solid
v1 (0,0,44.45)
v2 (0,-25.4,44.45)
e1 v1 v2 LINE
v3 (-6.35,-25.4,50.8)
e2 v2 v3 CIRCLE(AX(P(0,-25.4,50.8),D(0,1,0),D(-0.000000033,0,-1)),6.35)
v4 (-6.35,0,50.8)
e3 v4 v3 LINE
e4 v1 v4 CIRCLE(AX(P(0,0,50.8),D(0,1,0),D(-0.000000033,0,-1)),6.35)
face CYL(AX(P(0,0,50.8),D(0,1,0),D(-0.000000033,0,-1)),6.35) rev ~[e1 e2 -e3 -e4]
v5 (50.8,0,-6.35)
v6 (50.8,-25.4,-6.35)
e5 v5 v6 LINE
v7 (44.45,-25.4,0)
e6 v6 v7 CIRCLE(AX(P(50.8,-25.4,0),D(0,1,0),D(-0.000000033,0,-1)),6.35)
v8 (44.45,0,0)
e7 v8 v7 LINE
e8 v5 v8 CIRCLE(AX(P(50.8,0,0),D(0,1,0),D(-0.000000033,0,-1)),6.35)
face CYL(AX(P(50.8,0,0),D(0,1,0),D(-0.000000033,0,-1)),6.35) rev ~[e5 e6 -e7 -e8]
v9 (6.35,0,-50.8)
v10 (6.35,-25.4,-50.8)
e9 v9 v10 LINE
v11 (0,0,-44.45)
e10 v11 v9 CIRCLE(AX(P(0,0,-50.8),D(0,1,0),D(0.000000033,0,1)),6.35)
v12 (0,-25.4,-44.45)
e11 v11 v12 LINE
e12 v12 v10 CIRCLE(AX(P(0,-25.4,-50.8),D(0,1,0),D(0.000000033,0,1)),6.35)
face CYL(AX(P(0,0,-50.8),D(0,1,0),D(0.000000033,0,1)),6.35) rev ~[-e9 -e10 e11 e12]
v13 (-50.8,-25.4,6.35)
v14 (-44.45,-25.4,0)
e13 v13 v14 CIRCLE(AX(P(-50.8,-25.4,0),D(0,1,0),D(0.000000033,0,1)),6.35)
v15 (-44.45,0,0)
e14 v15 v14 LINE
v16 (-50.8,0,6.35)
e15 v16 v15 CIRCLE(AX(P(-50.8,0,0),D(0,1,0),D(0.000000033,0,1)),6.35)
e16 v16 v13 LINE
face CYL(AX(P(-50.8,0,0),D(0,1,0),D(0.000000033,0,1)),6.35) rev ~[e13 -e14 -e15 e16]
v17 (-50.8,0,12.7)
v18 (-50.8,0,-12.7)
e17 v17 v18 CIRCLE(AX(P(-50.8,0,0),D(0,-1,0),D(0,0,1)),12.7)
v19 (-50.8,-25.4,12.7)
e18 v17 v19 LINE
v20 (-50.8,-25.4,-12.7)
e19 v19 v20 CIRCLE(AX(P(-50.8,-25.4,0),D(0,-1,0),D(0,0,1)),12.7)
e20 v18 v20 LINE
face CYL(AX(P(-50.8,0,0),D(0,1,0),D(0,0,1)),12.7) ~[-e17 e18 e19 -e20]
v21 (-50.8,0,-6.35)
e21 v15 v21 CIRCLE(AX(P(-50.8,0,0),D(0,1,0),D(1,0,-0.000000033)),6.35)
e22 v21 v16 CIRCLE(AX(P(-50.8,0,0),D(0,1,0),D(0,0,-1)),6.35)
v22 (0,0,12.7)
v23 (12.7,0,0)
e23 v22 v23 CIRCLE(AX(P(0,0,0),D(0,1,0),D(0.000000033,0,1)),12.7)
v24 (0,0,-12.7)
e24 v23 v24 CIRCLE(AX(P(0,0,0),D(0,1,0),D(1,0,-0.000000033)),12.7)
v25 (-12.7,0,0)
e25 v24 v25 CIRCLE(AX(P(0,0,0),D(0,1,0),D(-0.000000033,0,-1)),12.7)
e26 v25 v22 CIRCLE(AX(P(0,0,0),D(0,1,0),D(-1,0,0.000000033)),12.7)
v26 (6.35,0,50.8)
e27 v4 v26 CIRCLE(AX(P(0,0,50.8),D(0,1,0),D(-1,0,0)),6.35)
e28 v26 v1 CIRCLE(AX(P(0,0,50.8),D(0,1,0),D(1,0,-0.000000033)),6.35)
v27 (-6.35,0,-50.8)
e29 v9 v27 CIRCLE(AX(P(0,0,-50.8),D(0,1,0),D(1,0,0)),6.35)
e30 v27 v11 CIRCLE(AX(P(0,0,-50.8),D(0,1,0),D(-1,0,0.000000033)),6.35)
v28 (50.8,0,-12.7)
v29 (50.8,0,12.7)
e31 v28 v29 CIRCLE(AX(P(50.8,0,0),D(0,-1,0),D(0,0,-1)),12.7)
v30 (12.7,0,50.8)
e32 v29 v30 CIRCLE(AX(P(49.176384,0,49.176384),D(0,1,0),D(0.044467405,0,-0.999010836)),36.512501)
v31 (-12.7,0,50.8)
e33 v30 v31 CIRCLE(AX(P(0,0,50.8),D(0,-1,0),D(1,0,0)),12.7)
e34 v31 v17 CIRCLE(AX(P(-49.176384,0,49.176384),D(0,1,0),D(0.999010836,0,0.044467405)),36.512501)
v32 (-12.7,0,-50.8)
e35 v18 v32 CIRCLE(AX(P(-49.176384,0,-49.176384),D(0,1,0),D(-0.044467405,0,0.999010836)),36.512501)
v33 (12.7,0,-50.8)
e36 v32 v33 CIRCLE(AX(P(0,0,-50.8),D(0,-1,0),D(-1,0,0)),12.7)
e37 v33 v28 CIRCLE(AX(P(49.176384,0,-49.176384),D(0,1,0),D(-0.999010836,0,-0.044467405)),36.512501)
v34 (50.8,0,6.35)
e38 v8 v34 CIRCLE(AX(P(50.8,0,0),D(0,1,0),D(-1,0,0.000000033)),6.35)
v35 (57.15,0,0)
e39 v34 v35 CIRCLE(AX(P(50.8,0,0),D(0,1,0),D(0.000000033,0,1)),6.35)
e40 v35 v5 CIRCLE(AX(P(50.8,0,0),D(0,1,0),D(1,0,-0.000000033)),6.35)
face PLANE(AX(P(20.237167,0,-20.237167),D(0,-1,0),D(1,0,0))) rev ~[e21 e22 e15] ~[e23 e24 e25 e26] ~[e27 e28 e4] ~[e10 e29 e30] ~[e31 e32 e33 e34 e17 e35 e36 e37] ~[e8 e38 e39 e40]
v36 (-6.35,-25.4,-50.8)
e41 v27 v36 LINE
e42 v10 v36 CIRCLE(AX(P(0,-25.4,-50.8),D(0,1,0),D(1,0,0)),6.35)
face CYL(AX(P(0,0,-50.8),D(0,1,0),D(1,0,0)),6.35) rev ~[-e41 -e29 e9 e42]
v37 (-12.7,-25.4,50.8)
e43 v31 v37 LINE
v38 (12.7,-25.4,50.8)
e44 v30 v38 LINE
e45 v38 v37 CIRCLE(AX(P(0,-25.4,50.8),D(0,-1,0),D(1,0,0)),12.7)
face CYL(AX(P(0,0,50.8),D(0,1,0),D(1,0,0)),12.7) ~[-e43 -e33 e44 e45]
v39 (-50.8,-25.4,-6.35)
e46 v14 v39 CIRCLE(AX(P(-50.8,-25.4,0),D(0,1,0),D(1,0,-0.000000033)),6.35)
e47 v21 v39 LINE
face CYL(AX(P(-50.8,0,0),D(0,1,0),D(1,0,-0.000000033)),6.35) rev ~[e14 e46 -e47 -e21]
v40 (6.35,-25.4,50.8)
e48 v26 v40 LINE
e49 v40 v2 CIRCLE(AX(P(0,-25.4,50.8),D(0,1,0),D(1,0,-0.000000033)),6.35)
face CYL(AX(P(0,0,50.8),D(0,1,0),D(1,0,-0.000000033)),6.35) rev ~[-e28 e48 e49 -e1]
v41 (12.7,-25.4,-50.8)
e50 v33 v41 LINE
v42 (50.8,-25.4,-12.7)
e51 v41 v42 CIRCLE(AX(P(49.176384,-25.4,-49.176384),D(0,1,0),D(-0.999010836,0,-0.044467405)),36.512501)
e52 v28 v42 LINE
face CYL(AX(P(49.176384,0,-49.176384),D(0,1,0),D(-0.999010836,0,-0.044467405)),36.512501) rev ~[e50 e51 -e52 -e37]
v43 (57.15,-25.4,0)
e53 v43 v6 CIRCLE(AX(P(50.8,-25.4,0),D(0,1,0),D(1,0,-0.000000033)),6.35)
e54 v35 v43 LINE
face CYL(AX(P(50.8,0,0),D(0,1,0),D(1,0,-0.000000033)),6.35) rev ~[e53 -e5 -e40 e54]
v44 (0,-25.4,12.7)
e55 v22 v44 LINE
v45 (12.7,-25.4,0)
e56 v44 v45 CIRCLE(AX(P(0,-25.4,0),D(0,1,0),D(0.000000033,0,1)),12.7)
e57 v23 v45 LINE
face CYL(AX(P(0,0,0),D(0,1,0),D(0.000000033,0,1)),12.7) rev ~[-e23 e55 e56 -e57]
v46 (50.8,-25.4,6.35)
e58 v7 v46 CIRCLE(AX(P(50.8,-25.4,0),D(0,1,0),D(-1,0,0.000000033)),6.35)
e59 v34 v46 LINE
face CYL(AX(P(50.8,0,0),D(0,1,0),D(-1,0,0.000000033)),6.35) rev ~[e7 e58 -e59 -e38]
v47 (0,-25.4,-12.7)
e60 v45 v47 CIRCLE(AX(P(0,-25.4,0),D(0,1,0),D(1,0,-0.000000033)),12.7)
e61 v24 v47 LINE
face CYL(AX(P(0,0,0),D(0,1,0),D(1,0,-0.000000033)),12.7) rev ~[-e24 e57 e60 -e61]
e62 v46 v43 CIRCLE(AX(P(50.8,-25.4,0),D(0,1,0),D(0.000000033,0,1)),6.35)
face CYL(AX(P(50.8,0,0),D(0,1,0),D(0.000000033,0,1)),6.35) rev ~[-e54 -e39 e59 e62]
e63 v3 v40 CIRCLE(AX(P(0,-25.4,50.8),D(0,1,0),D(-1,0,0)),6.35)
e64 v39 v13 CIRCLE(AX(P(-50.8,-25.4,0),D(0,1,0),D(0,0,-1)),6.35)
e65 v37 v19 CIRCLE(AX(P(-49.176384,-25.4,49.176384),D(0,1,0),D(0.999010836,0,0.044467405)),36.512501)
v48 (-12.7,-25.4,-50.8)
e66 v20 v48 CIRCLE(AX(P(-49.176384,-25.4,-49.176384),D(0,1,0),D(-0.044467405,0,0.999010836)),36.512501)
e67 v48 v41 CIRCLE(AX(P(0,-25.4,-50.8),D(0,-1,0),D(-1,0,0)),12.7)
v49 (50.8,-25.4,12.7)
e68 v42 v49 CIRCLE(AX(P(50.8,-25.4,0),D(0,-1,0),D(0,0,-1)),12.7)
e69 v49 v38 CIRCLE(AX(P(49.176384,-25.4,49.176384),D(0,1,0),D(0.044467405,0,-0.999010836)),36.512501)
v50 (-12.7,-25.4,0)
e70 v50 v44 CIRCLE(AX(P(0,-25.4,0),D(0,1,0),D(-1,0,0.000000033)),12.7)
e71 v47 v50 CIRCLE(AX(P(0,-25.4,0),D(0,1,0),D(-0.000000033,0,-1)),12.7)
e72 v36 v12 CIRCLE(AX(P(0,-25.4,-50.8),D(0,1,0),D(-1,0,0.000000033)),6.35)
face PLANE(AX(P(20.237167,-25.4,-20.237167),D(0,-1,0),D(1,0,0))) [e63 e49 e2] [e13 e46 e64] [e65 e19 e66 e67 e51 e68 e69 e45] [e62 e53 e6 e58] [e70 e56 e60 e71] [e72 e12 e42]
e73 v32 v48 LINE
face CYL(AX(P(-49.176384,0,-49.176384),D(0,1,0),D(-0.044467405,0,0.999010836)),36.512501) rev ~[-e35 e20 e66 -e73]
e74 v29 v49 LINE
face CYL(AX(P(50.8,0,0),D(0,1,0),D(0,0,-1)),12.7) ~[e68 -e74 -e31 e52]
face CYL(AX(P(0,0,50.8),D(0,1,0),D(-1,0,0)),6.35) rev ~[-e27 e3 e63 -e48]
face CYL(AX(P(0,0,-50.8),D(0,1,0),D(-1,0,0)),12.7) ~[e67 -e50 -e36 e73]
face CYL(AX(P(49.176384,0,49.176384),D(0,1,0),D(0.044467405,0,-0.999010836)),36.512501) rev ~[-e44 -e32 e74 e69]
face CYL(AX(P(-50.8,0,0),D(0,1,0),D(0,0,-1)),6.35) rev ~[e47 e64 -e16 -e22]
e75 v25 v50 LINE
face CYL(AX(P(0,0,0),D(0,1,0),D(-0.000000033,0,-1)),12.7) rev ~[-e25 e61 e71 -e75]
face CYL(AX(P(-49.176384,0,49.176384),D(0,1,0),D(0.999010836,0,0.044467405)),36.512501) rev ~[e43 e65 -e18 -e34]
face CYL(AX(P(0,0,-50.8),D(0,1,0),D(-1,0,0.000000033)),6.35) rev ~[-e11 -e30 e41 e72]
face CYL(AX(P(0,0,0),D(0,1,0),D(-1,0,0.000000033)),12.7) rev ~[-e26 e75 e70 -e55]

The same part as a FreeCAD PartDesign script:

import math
import FreeCAD as App
import Part
import Sketcher
Q = App.Units.Quantity

doc = App.newDocument("Part")
params = doc.addObject("Spreadsheet::Sheet", "Params")
for row, (alias, value) in enumerate([
    ("sketch1_radius", "0.5 in"),
    ("sketch1_radius2", "0.25 in"),
    ("sketch1_radius3", "1.4375 in"),
    ("pad1_length", "1 in"),
], start=1):
    params.set(f"A{row}", alias)
    params.set(f"B{row}", "=" + value)
    params.setAlias(f"B{row}", alias)

body = doc.addObject("PartDesign::Body", "Body")

sketch1 = body.newObject("Sketcher::SketchObject", "Sketch")
sketch1.AttachmentSupport = (doc.getObject("XZ_Plane"), [""])
sketch1.MapMode = "FlatFace"
sketch1.addGeometry(Part.ArcOfCircle(Part.Circle(App.Vector(49.176384, -49.176384, 0), App.Vector(0, 0, 1), 36.512501), math.radians(87.451365), math.radians(182.548635)), False)
sketch1.addGeometry(Part.ArcOfCircle(Part.Circle(App.Vector(50.8, 0, 0), App.Vector(0, 0, 1), 12.7), math.radians(-90), math.radians(90)), False)
sketch1.addGeometry(Part.ArcOfCircle(Part.Circle(App.Vector(49.176384, 49.176384, 0), App.Vector(0, 0, 1), 36.512501), math.radians(177.451365), math.radians(272.548635)), False)
sketch1.addGeometry(Part.ArcOfCircle(Part.Circle(App.Vector(0, 50.8, 0), App.Vector(0, 0, 1), 12.7), math.radians(0), math.radians(180)), False)
sketch1.addGeometry(Part.ArcOfCircle(Part.Circle(App.Vector(-49.176384, 49.176384, 0), App.Vector(0, 0, 1), 36.512501), math.radians(-92.548635), math.radians(2.548635)), False)
sketch1.addGeometry(Part.ArcOfCircle(Part.Circle(App.Vector(-50.8, 0, 0), App.Vector(0, 0, 1), 12.7), math.radians(90), math.radians(270)), False)
sketch1.addGeometry(Part.ArcOfCircle(Part.Circle(App.Vector(-49.176384, -49.176384, 0), App.Vector(0, 0, 1), 36.512501), math.radians(-2.548635), math.radians(92.548635)), False)
sketch1.addGeometry(Part.ArcOfCircle(Part.Circle(App.Vector(0, -50.8, 0), App.Vector(0, 0, 1), 12.7), math.radians(180), math.radians(360)), False)
sketch1.addGeometry(Part.ArcOfCircle(Part.Circle(App.Vector(0, 0, 0), App.Vector(0, 0, 1), 12.7), math.radians(-89.999998), math.radians(-0.000002)), False)
sketch1.addGeometry(Part.ArcOfCircle(Part.Circle(App.Vector(0, 0, 0), App.Vector(0, 0, 1), 12.7), math.radians(-179.999998), math.radians(-90.000002)), False)
sketch1.addGeometry(Part.ArcOfCircle(Part.Circle(App.Vector(0, 0, 0), App.Vector(0, 0, 1), 12.7), math.radians(90.000002), math.radians(179.999998)), False)
sketch1.addGeometry(Part.ArcOfCircle(Part.Circle(App.Vector(0, 0, 0), App.Vector(0, 0, 1), 12.7), math.radians(0.000002), math.radians(89.999998)), False)
sketch1.addGeometry(Part.ArcOfCircle(Part.Circle(App.Vector(0, -50.8, 0), App.Vector(0, 0, 1), 6.35), math.radians(0.000002), math.radians(89.999998)), False)
sketch1.addGeometry(Part.ArcOfCircle(Part.Circle(App.Vector(0, -50.8, 0), App.Vector(0, 0, 1), 6.35), math.radians(180), math.radians(360)), False)
sketch1.addGeometry(Part.ArcOfCircle(Part.Circle(App.Vector(0, -50.8, 0), App.Vector(0, 0, 1), 6.35), math.radians(90.000002), math.radians(179.999998)), False)
sketch1.addGeometry(Part.ArcOfCircle(Part.Circle(App.Vector(-50.8, 0, 0), App.Vector(0, 0, 1), 6.35), math.radians(0.000002), math.radians(89.999998)), False)
sketch1.addGeometry(Part.ArcOfCircle(Part.Circle(App.Vector(-50.8, 0, 0), App.Vector(0, 0, 1), 6.35), math.radians(-89.999998), math.radians(-0.000002)), False)
sketch1.addGeometry(Part.ArcOfCircle(Part.Circle(App.Vector(-50.8, 0, 0), App.Vector(0, 0, 1), 6.35), math.radians(90), math.radians(270)), False)
sketch1.addGeometry(Part.ArcOfCircle(Part.Circle(App.Vector(0, 50.8, 0), App.Vector(0, 0, 1), 6.35), math.radians(-89.999998), math.radians(-0.000002)), False)
sketch1.addGeometry(Part.ArcOfCircle(Part.Circle(App.Vector(0, 50.8, 0), App.Vector(0, 0, 1), 6.35), math.radians(-179.999998), math.radians(-90.000002)), False)
sketch1.addGeometry(Part.ArcOfCircle(Part.Circle(App.Vector(0, 50.8, 0), App.Vector(0, 0, 1), 6.35), math.radians(0), math.radians(180)), False)
sketch1.addGeometry(Part.ArcOfCircle(Part.Circle(App.Vector(50.8, 0, 0), App.Vector(0, 0, 1), 6.35), math.radians(-179.999998), math.radians(-90.000002)), False)
sketch1.addGeometry(Part.ArcOfCircle(Part.Circle(App.Vector(50.8, 0, 0), App.Vector(0, 0, 1), 6.35), math.radians(90.000002), math.radians(179.999998)), False)
sketch1.addGeometry(Part.ArcOfCircle(Part.Circle(App.Vector(50.8, 0, 0), App.Vector(0, 0, 1), 6.35), math.radians(0.000002), math.radians(89.999998)), False)
sketch1.addGeometry(Part.ArcOfCircle(Part.Circle(App.Vector(50.8, 0, 0), App.Vector(0, 0, 1), 6.35), math.radians(-89.999998), math.radians(-0.000002)), False)
sketch1.addConstraint(Sketcher.Constraint("Coincident", 0, 1, 1, 1))
sketch1.addConstraint(Sketcher.Constraint("Coincident", 1, 2, 2, 2))
sketch1.addConstraint(Sketcher.Constraint("Coincident", 2, 1, 3, 1))
sketch1.addConstraint(Sketcher.Constraint("Coincident", 3, 2, 4, 2))
sketch1.addConstraint(Sketcher.Constraint("Coincident", 4, 1, 5, 1))
sketch1.addConstraint(Sketcher.Constraint("Coincident", 5, 2, 6, 2))
sketch1.addConstraint(Sketcher.Constraint("Coincident", 6, 1, 7, 1))
sketch1.addConstraint(Sketcher.Constraint("Coincident", 7, 2, 0, 2))
sketch1.addConstraint(Sketcher.Constraint("Tangent", 8, 1, 9, 2))
sketch1.addConstraint(Sketcher.Constraint("Tangent", 9, 1, 10, 2))
sketch1.addConstraint(Sketcher.Constraint("Tangent", 10, 1, 11, 2))
sketch1.addConstraint(Sketcher.Constraint("Tangent", 11, 1, 8, 2))
sketch1.addConstraint(Sketcher.Constraint("Tangent", 12, 1, 13, 2))
sketch1.addConstraint(Sketcher.Constraint("Tangent", 13, 1, 14, 2))
sketch1.addConstraint(Sketcher.Constraint("Tangent", 14, 1, 12, 2))
sketch1.addConstraint(Sketcher.Constraint("Tangent", 15, 1, 16, 2))
sketch1.addConstraint(Sketcher.Constraint("Tangent", 16, 1, 17, 2))
sketch1.addConstraint(Sketcher.Constraint("Tangent", 17, 1, 15, 2))
sketch1.addConstraint(Sketcher.Constraint("Tangent", 18, 1, 19, 2))
sketch1.addConstraint(Sketcher.Constraint("Tangent", 19, 1, 20, 2))
sketch1.addConstraint(Sketcher.Constraint("Tangent", 20, 1, 18, 2))
sketch1.addConstraint(Sketcher.Constraint("Tangent", 21, 1, 22, 2))
sketch1.addConstraint(Sketcher.Constraint("Tangent", 22, 1, 23, 2))
sketch1.addConstraint(Sketcher.Constraint("Tangent", 23, 1, 24, 2))
sketch1.addConstraint(Sketcher.Constraint("Tangent", 24, 1, 21, 2))
sketch1.addConstraint(Sketcher.Constraint("Coincident", 8, 3, -1, 1))
sketch1.addConstraint(Sketcher.Constraint("Coincident", 12, 3, 7, 3))
sketch1.addConstraint(Sketcher.Constraint("Coincident", 15, 3, 5, 3))
sketch1.addConstraint(Sketcher.Constraint("Coincident", 18, 3, 3, 3))
sketch1.addConstraint(Sketcher.Constraint("Coincident", 21, 3, 1, 3))
sketch1.addConstraint(Sketcher.Constraint("Equal", 0, 2))
sketch1.addConstraint(Sketcher.Constraint("Equal", 1, 3))
sketch1.addConstraint(Sketcher.Constraint("Equal", 2, 4))
sketch1.addConstraint(Sketcher.Constraint("Equal", 3, 5))
sketch1.addConstraint(Sketcher.Constraint("Equal", 4, 6))
sketch1.addConstraint(Sketcher.Constraint("Equal", 5, 7))
sketch1.addConstraint(Sketcher.Constraint("Equal", 7, 8))
sketch1.addConstraint(Sketcher.Constraint("Equal", 8, 9))
sketch1.addConstraint(Sketcher.Constraint("Equal", 14, 15))
sketch1.addConstraint(Sketcher.Constraint("Equal", 17, 18))
sketch1.addConstraint(Sketcher.Constraint("Equal", 20, 21))
sketch1.addConstraint(Sketcher.Constraint("Equal", 21, 22))
sketch1.addConstraint(Sketcher.Constraint("Symmetric", 0, 3, 4, 3, -1, 1))
sketch1.addConstraint(Sketcher.Constraint("Symmetric", 1, 3, 5, 3, -1, 1))
sketch1.addConstraint(Sketcher.Constraint("Symmetric", 2, 3, 6, 3, -1, 1))
sketch1.addConstraint(Sketcher.Constraint("Symmetric", 3, 3, 7, 3, -1, 1))
sketch1.addConstraint(Sketcher.Constraint("Symmetric", 2, 3, 4, 3, -2))
sketch1.addConstraint(Sketcher.Constraint("Symmetric", 12, 1, 13, 1, -2))
sketch1.addConstraint(Sketcher.Constraint("Symmetric", 17, 1, 22, 1, -2))
sketch1.addConstraint(Sketcher.Constraint("PointOnObject", 8, 1, -2))
sketch1.addConstraint(Sketcher.Constraint("PointOnObject", 9, 1, -1))
sketch1.addConstraint(Sketcher.Constraint("PointOnObject", 10, 1, -2))
sketch1.addConstraint(Sketcher.Constraint("PointOnObject", 11, 1, -1))
sketch1.addConstraint(Sketcher.Constraint("PointOnObject", 14, 1, -2))
sketch1.addConstraint(Sketcher.Constraint("PointOnObject", 15, 1, -1))
sketch1.addConstraint(Sketcher.Constraint("PointOnObject", 18, 1, -2))
sketch1.addConstraint(Sketcher.Constraint("PointOnObject", 21, 1, -1))
sketch1.addConstraint(Sketcher.Constraint("PointOnObject", 23, 1, -1))
sketch1.addConstraint(Sketcher.Constraint("Horizontal", 20, 3, 2, 1))
sketch1.addConstraint(Sketcher.Constraint("Horizontal", 7, 2, 12, 1))
sketch1.addConstraint(Sketcher.Constraint("Horizontal", 3, 2, 19, 1))
sketch1.addConstraint(Sketcher.Constraint("Horizontal", 19, 1, 20, 1))
sketch1.addConstraint(Sketcher.Constraint("Vertical", 24, 3, 0, 1))
sketch1.addConstraint(Sketcher.Constraint("Vertical", 5, 2, 16, 1))
sketch1.addConstraint(Sketcher.Constraint("Vertical", 16, 1, 17, 1))
sketch1.addConstraint(Sketcher.Constraint("Vertical", 22, 1, 24, 1))
sketch1.addConstraint(Sketcher.Constraint("Radius", 1, Q("0.5 in")))
sketch1.addConstraint(Sketcher.Constraint("Radius", 12, Q("0.25 in")))
sketch1.addConstraint(Sketcher.Constraint("DistanceX", -1, 1, 1, 3, Q("2 in")))
sketch1.addConstraint(Sketcher.Constraint("DistanceY", -1, 1, 3, 3, Q("2 in")))
sketch1.addConstraint(Sketcher.Constraint("Radius", 0, Q("1.4375 in")))
sketch1.setExpression("Constraints[66]", "Params.sketch1_radius")
sketch1.setExpression("Constraints[67]", "Params.sketch1_radius2")
sketch1.setExpression("Constraints[70]", "Params.sketch1_radius3")
pad1 = body.newObject("PartDesign::Pad", "Pad")
pad1.Profile = sketch1
pad1.setExpression("Length", "Params.pad1_length")

doc.recompute()
